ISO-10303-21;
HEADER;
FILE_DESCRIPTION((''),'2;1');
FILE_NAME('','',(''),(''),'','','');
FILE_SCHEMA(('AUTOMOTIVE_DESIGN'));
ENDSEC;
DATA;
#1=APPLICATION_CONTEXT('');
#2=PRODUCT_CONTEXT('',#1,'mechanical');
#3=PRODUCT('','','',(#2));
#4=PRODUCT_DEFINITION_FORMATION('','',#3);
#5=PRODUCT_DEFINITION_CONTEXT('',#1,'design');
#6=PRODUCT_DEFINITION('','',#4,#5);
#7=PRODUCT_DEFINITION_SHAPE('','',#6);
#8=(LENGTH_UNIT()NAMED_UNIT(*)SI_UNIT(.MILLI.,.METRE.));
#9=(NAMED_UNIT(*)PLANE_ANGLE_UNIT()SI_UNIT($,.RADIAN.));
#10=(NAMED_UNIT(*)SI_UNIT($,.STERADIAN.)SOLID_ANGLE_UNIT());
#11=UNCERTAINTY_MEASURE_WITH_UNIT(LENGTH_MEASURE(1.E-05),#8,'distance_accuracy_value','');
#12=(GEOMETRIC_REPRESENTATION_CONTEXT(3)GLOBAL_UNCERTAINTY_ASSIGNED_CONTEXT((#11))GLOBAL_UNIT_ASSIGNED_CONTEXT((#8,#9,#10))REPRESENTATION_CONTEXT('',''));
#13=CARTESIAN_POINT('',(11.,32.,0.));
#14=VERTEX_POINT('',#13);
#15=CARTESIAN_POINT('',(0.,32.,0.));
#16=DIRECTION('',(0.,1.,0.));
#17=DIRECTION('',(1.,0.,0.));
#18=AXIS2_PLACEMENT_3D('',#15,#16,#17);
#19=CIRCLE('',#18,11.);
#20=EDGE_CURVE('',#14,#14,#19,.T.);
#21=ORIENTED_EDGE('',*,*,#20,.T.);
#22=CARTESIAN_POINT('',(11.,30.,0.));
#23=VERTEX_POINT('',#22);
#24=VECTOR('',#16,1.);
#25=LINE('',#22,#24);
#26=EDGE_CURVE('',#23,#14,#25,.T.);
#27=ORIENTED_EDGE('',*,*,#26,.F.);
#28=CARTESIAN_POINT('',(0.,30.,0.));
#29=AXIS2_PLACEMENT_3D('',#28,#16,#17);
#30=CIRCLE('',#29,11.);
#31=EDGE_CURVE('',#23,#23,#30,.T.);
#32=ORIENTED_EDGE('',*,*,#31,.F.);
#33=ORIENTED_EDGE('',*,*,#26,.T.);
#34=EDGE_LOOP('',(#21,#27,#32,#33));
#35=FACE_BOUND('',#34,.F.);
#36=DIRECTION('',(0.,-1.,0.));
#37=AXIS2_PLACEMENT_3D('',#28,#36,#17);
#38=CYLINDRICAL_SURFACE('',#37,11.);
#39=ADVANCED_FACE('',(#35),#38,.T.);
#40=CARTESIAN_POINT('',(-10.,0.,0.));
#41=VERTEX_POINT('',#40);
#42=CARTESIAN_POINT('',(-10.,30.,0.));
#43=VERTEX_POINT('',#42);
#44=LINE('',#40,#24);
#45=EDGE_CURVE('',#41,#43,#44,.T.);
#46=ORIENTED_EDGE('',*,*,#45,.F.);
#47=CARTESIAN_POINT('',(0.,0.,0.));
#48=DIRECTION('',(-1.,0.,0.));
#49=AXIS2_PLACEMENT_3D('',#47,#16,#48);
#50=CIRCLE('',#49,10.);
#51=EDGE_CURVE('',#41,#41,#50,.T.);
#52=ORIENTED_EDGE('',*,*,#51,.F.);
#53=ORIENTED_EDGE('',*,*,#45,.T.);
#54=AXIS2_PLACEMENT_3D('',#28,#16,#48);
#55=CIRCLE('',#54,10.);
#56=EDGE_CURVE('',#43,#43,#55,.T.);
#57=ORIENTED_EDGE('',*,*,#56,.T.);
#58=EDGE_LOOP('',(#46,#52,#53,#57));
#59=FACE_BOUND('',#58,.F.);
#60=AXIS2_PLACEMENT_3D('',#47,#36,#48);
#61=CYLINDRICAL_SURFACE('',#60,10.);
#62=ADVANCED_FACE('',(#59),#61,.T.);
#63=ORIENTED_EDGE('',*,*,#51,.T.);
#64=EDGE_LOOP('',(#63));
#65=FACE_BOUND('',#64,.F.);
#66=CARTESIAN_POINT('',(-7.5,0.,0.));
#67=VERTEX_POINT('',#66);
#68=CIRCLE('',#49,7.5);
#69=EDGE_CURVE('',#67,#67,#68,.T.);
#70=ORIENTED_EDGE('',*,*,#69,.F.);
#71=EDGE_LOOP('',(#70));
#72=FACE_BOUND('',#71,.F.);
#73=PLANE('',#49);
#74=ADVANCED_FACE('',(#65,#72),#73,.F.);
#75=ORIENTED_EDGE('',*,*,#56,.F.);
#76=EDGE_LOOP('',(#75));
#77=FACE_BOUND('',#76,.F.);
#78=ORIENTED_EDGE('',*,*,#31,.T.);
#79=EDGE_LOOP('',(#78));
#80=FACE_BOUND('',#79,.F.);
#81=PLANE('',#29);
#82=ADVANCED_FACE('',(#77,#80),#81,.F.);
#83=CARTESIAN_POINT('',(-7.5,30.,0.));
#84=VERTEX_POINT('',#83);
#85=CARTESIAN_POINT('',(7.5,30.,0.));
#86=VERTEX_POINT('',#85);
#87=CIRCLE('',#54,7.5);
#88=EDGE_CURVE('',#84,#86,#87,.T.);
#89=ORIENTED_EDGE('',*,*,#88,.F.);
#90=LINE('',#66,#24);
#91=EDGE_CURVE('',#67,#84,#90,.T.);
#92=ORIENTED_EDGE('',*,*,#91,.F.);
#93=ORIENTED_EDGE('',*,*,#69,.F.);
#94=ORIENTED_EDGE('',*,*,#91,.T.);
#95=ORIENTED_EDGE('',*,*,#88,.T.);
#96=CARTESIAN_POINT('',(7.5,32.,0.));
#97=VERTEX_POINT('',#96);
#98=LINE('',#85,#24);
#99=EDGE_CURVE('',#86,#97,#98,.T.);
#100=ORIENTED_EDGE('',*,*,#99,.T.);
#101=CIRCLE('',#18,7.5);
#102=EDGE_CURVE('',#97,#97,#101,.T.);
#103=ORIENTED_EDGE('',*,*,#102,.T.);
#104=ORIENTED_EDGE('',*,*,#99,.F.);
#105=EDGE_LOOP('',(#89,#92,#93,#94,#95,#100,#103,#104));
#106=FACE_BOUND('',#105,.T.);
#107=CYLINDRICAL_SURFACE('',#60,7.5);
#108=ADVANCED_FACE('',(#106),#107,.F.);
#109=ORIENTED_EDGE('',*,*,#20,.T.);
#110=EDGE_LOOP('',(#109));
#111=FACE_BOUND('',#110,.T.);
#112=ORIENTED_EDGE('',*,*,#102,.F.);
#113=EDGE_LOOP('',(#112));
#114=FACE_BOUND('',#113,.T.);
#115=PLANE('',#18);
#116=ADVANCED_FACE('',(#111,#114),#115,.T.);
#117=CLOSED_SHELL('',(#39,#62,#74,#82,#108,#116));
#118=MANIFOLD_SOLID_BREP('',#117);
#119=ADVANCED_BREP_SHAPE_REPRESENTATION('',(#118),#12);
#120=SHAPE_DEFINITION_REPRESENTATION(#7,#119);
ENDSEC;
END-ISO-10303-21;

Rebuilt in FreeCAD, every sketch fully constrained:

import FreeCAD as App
import Part
import Sketcher
Q = App.Units.Quantity

doc = App.newDocument("Part")
params = doc.addObject("Spreadsheet::Sheet", "Params")
for row, (alias, value) in enumerate([
    ("sketch1_diameter", "20 mm"),
    ("sketch1_diameter2", "15 mm"),
    ("pad1_length", "30 mm"),
    ("sketch2_diameter", "22 mm"),
    ("sketch2_diameter2", "15 mm"),
    ("pad2_length", "2 mm"),
], start=1):
    params.set(f"A{row}", alias)
    params.set(f"B{row}", "=" + value)
    params.setAlias(f"B{row}", alias)

body = doc.addObject("PartDesign::Body", "Body")

# Sketch on XZ plane
sketch1 = body.newObject("Sketcher::SketchObject", "Sketch")
sketch1.AttachmentSupport = (doc.getObject("XZ_Plane"), [""])
sketch1.MapMode = "FlatFace"
sketch1.addGeometry([
    Part.Circle(App.Vector(0, 0, 0), App.Vector(0, 0, 1), 10),
    Part.Circle(App.Vector(0, 0, 0), App.Vector(0, 0, 1), 8),
], False)
sketch1.addConstraint([
    Sketcher.Constraint("Coincident", 0, 3, -1, 1),
    Sketcher.Constraint("Coincident", 1, 3, -1, 1),
    Sketcher.Constraint("Diameter", 0, Q("20 mm")),
    Sketcher.Constraint("Diameter", 1, Q("15 mm")),
])
sketch1.setExpression("Constraints[2]", "Params.sketch1_diameter")
sketch1.setExpression("Constraints[3]", "Params.sketch1_diameter2")
pad1 = body.newObject("PartDesign::Pad", "Pad")
pad1.Profile = sketch1
pad1.setExpression("Length", "Params.pad1_length")
pad1.Reversed = True

# Sketch on XZ plane
sketch2 = body.newObject("Sketcher::SketchObject", "Sketch001")
sketch2.AttachmentSupport = (doc.getObject("XZ_Plane"), [""])
sketch2.MapMode = "FlatFace"
sketch2.AttachmentOffset = App.Placement(App.Vector(0, 0, -30), App.Rotation())
sketch2.addGeometry([
    Part.Circle(App.Vector(0, 0, 0), App.Vector(0, 0, 1), 11),
    Part.Circle(App.Vector(0, 0, 0), App.Vector(0, 0, 1), 8),
], False)
sketch2.addConstraint([
    Sketcher.Constraint("Coincident", 0, 3, -1, 1),
    Sketcher.Constraint("Coincident", 1, 3, -1, 1),
    Sketcher.Constraint("Diameter", 0, Q("22 mm")),
    Sketcher.Constraint("Diameter", 1, Q("15 mm")),
])
sketch2.setExpression("Constraints[2]", "Params.sketch2_diameter")
sketch2.setExpression("Constraints[3]", "Params.sketch2_diameter2")
pad2 = body.newObject("PartDesign::Pad", "Pad001")
pad2.Profile = sketch2
pad2.setExpression("Length", "Params.pad2_length")
pad2.Reversed = True

doc.recompute()
